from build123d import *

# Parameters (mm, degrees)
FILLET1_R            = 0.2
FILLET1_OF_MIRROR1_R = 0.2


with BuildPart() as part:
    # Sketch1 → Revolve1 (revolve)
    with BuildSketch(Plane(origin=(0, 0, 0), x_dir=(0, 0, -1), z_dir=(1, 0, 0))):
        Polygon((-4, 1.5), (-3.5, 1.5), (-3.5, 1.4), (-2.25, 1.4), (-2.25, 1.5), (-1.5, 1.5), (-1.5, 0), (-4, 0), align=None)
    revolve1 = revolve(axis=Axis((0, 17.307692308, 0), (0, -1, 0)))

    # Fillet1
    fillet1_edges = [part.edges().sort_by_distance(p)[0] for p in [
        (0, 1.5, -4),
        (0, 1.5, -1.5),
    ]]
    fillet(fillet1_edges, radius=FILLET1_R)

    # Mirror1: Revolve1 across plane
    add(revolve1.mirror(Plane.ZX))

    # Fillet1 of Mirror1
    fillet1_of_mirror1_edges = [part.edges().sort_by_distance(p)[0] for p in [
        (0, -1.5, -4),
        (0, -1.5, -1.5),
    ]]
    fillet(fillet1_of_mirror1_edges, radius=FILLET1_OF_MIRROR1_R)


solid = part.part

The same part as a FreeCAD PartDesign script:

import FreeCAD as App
import Part
import Sketcher
from FreeCAD import Vector


def edges_at(feature, points):
    """Names of the edges that pass closest to the given points."""
    edges = feature.Shape.Edges
    near = lambda p: min(range(len(edges)), key=lambda i: edges[i].distToShape(Part.Vertex(*p))[0])
    return sorted({f"Edge{near(p) + 1}" for p in points})


def add_polygon(sketch, points):
    """Adds a closed chain of lines whose ends are joined by coincident constraints."""
    first, n = sketch.GeometryCount, len(points)
    for a, b in zip(points, points[1:] + points[:1]):
        sketch.addGeometry(Part.LineSegment(App.Vector(*a, 0), App.Vector(*b, 0)), False)
    for i in range(n):
        sketch.addConstraint(Sketcher.Constraint("Coincident", first + i, 2, first + (i + 1) % n, 1))

doc = App.newDocument("Part")
body = doc.addObject("PartDesign::Body", "Body")

sketch1 = body.newObject("Sketcher::SketchObject", "Sketch")
sketch1.AttachmentSupport = (doc.getObject("YZ_Plane"), [""])
sketch1.MapMode = "FlatFace"
add_polygon(sketch1, [(1.5, 3.5), (1.5, 4), (0, 4), (0, 1.5), (1.5, 1.5), (1.5, 2.25), (1.4, 2.25), (1.4, 3.5)])
sketch1.addConstraint(Sketcher.Constraint("Vertical", 0))
sketch1.addConstraint(Sketcher.Constraint("Horizontal", 1))
sketch1.addConstraint(Sketcher.Constraint("Vertical", 2))
sketch1.addConstraint(Sketcher.Constraint("Horizontal", 3))
sketch1.addConstraint(Sketcher.Constraint("Vertical", 4))
sketch1.addConstraint(Sketcher.Constraint("Horizontal", 5))
sketch1.addConstraint(Sketcher.Constraint("Vertical", 6))
sketch1.addConstraint(Sketcher.Constraint("Horizontal", 7))
sketch1.addConstraint(Sketcher.Constraint("PointOnObject", 1, 2, -2))
sketch1.addConstraint(Sketcher.Constraint("Vertical", 0, 2, 3, 2))
sketch1.addConstraint(Sketcher.Constraint("DistanceX", 1, 2, 1, 1, 1.5))
sketch1.addConstraint(Sketcher.Constraint("DistanceX", 5, 2, 5, 1, 0.1))
sketch1.addConstraint(Sketcher.Constraint("DistanceY", 0, 1, 0, 2, 0.5))
sketch1.addConstraint(Sketcher.Constraint("DistanceY", 2, 2, 2, 1, 2.5))
sketch1.addConstraint(Sketcher.Constraint("DistanceY", -1, 1, 0, 2, 4.0))
sketch1.addConstraint(Sketcher.Constraint("DistanceY", 4, 1, 4, 2, 0.75))
revolution = body.newObject("PartDesign::Revolution", "Revolution")
revolution.Profile = sketch1
revolution.ReferenceAxis = (sketch1, ["H_Axis"])
revolution.Angle = 360
doc.recompute()

fillet = body.newObject("PartDesign::Fillet", "Fillet")
fillet.Base = (revolution, edges_at(revolution, [(0, 1.5, -4), (0, 1.5, -1.5)]))
fillet.Radius = 0.2
doc.recompute()

mirrored = body.newObject("PartDesign::Mirrored", "Mirrored")
mirrored.Originals = [revolution]
mirrored.MirrorPlane = (doc.getObject("XZ_Plane"), [""])
body.Tip = mirrored
doc.recompute()

fillet2 = body.newObject("PartDesign::Fillet", "Fillet001")
fillet2.Base = (mirrored, edges_at(mirrored, [(0, -1.5, -4), (0, -1.5, -1.5)]))
fillet2.Radius = 0.2

doc.recompute()
